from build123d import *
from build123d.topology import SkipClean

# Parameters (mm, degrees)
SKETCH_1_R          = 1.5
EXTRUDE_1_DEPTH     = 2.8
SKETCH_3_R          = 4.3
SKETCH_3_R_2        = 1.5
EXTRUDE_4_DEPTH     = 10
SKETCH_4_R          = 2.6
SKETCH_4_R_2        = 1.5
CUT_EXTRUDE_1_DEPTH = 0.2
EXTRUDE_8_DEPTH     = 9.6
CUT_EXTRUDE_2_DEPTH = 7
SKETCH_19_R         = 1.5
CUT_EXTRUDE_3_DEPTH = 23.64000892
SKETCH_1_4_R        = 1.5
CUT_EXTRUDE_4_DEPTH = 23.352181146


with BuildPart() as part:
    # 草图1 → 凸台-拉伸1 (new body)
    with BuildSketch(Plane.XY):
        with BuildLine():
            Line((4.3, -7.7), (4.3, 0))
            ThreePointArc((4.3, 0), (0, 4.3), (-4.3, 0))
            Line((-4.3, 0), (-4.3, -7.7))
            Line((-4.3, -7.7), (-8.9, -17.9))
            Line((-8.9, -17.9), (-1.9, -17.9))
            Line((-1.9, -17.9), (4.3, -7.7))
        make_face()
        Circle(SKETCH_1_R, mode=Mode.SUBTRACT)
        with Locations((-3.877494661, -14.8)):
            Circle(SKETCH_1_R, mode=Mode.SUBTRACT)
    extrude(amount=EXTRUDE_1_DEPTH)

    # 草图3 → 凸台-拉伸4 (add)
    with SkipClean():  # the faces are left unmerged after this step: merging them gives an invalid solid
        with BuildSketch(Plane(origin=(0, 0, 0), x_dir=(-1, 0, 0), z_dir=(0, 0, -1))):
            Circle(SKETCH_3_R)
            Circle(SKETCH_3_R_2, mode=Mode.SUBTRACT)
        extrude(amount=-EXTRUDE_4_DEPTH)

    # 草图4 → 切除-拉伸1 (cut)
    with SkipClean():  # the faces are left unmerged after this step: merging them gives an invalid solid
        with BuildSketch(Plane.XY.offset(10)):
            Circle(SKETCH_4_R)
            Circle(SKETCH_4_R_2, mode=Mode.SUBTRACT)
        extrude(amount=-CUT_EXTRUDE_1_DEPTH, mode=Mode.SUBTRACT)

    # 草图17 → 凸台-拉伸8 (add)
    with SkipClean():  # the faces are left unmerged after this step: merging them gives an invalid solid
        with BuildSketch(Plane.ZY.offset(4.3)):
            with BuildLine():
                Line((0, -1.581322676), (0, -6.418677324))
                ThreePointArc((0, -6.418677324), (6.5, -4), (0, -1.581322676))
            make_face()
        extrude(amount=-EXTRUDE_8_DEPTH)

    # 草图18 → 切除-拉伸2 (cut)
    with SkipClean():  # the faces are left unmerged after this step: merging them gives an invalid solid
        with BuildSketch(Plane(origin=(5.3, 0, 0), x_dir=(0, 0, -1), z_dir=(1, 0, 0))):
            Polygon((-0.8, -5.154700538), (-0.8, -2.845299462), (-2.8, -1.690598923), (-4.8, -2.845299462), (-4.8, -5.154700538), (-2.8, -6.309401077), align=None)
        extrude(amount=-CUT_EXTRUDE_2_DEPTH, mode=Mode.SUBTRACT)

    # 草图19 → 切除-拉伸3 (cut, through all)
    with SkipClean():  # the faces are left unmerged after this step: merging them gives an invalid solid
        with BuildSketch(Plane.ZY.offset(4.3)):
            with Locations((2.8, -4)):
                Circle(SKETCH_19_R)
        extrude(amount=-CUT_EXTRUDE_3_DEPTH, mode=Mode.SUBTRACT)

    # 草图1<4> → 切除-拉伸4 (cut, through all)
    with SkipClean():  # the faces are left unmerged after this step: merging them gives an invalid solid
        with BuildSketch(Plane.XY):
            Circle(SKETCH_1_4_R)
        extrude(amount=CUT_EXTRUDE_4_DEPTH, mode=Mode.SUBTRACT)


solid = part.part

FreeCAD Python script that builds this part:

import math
import FreeCAD as App
import Part
import Sketcher
from FreeCAD import Vector
Q = App.Units.Quantity

doc = App.newDocument("Part")
params = doc.addObject("Spreadsheet::Sheet", "Params")
for row, (alias, value) in enumerate([
    ("sketch1_diameter", "3 mm"),
    ("sketch1_radius", "4.3 mm"),
    ("sketch1_width", "7 mm"),
    ("sketch1_height", "7.7 mm"),
    ("pad1_length", "2.8 mm"),
    ("sketch2_diameter", "3 mm"),
    ("sketch2_diameter2", "8.6 mm"),
    ("pad2_length", "10 mm"),
    ("sketch3_diameter", "3 mm"),
    ("sketch3_diameter2", "5.2 mm"),
    ("pocket1_length", "0.2 mm"),
    ("sketch4_radius", "3.7 mm"),
    ("pad3_length", "9.6 mm"),
    ("pocket2_length", "7 mm"),
    ("sketch6_diameter", "3 mm"),
    ("sketch7_diameter", "3 mm"),
], start=1):
    params.set(f"A{row}", alias)
    params.set(f"B{row}", "=" + value)
    params.setAlias(f"B{row}", alias)

body = doc.addObject("PartDesign::Body", "Body")

# Sketch on XY plane
sketch1 = body.newObject("Sketcher::SketchObject", "Sketch")
sketch1.AttachmentSupport = (doc.getObject("XY_Plane"), [""])
sketch1.MapMode = "FlatFace"
sketch1.addGeometry([
    Part.LineSegment(Vector(4.3, -7.7, 0), Vector(4.3, 0, 0)),  # 0
    Part.ArcOfCircle(Part.Circle(Vector(0, 0, 0), Vector(0, 0, 1), 4.3), math.radians(0), math.radians(180)),  # 1
    Part.LineSegment(Vector(-4.3, 0, 0), Vector(-4.3, -7.7, 0)),  # 2
    Part.LineSegment(Vector(-4.3, -7.7, 0), Vector(-8.9, -17.9, 0)),  # 3
    Part.LineSegment(Vector(-8.9, -17.9, 0), Vector(-1.9, -17.9, 0)),  # 4
    Part.LineSegment(Vector(-1.9, -17.9, 0), Vector(4.3, -7.7, 0)),  # 5
    Part.Circle(Vector(-3.9, -14.8, 0), Vector(0, 0, 1), 1.5),  # 6
    Part.Circle(Vector(0, 0, 0), Vector(0, 0, 1), 1.5),  # 7
], False)
sketch1.addConstraint([
    Sketcher.Constraint("Tangent", 0, 2, 1, 1),
    Sketcher.Constraint("Tangent", 1, 2, 2, 1),
    Sketcher.Constraint("Coincident", 2, 2, 3, 1),
    Sketcher.Constraint("Coincident", 3, 2, 4, 1),
    Sketcher.Constraint("Coincident", 4, 2, 5, 1),
    Sketcher.Constraint("Coincident", 5, 2, 0, 1),
    Sketcher.Constraint("Vertical", 0),
    Sketcher.Constraint("Vertical", 2),
    Sketcher.Constraint("Horizontal", 4),
    Sketcher.Constraint("Coincident", 1, 3, -1, 1),
    Sketcher.Constraint("Coincident", 7, 3, -1, 1),
    Sketcher.Constraint("Equal", 6, 7),
    Sketcher.Constraint("Horizontal", 2, 2, 5, 2),
    Sketcher.Constraint("Diameter", 6, 3.0),
    Sketcher.Constraint("Radius", 1, 4.3),
    Sketcher.Constraint("DistanceX", 4, 1, 4, 2, 7.0),
    Sketcher.Constraint("DistanceY", 0, 1, 0, 2, 7.7),
    Sketcher.Constraint("DistanceY", 6, 3, -1, 1, 14.8),
    Sketcher.Constraint("DistanceX", 3, 2, -1, 1, 8.9),
    Sketcher.Constraint("DistanceY", 3, 2, -1, 1, 17.9),
    Sketcher.Constraint("DistanceX", 6, 3, -1, 1, 3.877495),
])
sketch1.setExpression("Constraints[13]", "Params.sketch1_diameter")
sketch1.setExpression("Constraints[14]", "Params.sketch1_radius")
sketch1.setExpression("Constraints[15]", "Params.sketch1_width")
sketch1.setExpression("Constraints[16]", "Params.sketch1_height")
pad1 = body.newObject("PartDesign::Pad", "Pad")
pad1.Profile = sketch1
pad1.setExpression("Length", "Params.pad1_length")

# Sketch on XY plane
sketch2 = body.newObject("Sketcher::SketchObject", "Sketch001")
sketch2.AttachmentSupport = (doc.getObject("XY_Plane"), [""])
sketch2.MapMode = "FlatFace"
sketch2.addGeometry([
    Part.Circle(Vector(0, 0, 0), Vector(0, 0, 1), 4.3),
    Part.Circle(Vector(0, 0, 0), Vector(0, 0, 1), 1.5),
], False)
sketch2.addConstraint([
    Sketcher.Constraint("Coincident", 0, 3, -1, 1),
    Sketcher.Constraint("Coincident", 1, 3, -1, 1),
    Sketcher.Constraint("Diameter", 1, 3.0),
    Sketcher.Constraint("Diameter", 0, 8.6),
])
sketch2.setExpression("Constraints[2]", "Params.sketch2_diameter")
sketch2.setExpression("Constraints[3]", "Params.sketch2_diameter2")
pad2 = body.newObject("PartDesign::Pad", "Pad001")
pad2.Profile = sketch2
pad2.setExpression("Length", "Params.pad2_length")

# Sketch on XY plane
sketch3 = body.newObject("Sketcher::SketchObject", "Sketch002")
sketch3.AttachmentSupport = (doc.getObject("XY_Plane"), [""])
sketch3.MapMode = "FlatFace"
sketch3.AttachmentOffset = App.Placement(Vector(0, 0, 10), App.Rotation())
sketch3.addGeometry([
    Part.Circle(Vector(0, 0, 0), Vector(0, 0, 1), 2.6),
    Part.Circle(Vector(0, 0, 0), Vector(0, 0, 1), 1.5),
], False)
sketch3.addConstraint([
    Sketcher.Constraint("Coincident", 0, 3, -1, 1),
    Sketcher.Constraint("Coincident", 1, 3, -1, 1),
    Sketcher.Constraint("Diameter", 1, 3.0),
    Sketcher.Constraint("Diameter", 0, 5.2),
])
sketch3.setExpression("Constraints[2]", "Params.sketch3_diameter")
sketch3.setExpression("Constraints[3]", "Params.sketch3_diameter2")
pocket1 = body.newObject("PartDesign::Pocket", "Pocket")
pocket1.Profile = sketch3
pocket1.setExpression("Length", "Params.pocket1_length")

# Sketch on YZ plane
sketch4 = body.newObject("Sketcher::SketchObject", "Sketch003")
sketch4.AttachmentSupport = (doc.getObject("YZ_Plane"), [""])
sketch4.MapMode = "FlatFace"
sketch4.AttachmentOffset = App.Placement(Vector(0, 0, -4.3), App.Rotation())
sketch4.addGeometry([
    Part.LineSegment(Vector(-1.6, 0, 0), Vector(-6.4, 0, 0)),
    Part.ArcOfCircle(Part.Circle(Vector(-4, 2.8, 0), Vector(0, 0, 1), 3.7), math.radians(-49), math.radians(229)),
], False)
sketch4.addConstraint([
    Sketcher.Constraint("Coincident", 0, 1, 1, 1),
    Sketcher.Constraint("Coincident", 1, 2, 0, 2),
    Sketcher.Constraint("Horizontal", 0),
    Sketcher.Constraint("PointOnObject", 0, 1, -1),
    Sketcher.Constraint("Radius", 1, 3.7),
    Sketcher.Constraint("DistanceX", 1, 3, -1, 1, 4.0),
    Sketcher.Constraint("DistanceY", -1, 1, 1, 3, 2.8),
])
sketch4.setExpression("Constraints[4]", "Params.sketch4_radius")
pad3 = body.newObject("PartDesign::Pad", "Pad002")
pad3.Profile = sketch4
pad3.setExpression("Length", "Params.pad3_length")

# Sketch on YZ plane
sketch5 = body.newObject("Sketcher::SketchObject", "Sketch004")
sketch5.AttachmentSupport = (doc.getObject("YZ_Plane"), [""])
sketch5.MapMode = "FlatFace"
sketch5.AttachmentOffset = App.Placement(Vector(0, 0, 5.3), App.Rotation())
sketch5.addGeometry([
    Part.LineSegment(Vector(-5.2, 0.8, 0), Vector(-2.8, 0.8, 0)),  # 0
    Part.LineSegment(Vector(-2.8, 0.8, 0), Vector(-1.7, 2.8, 0)),  # 1
    Part.LineSegment(Vector(-1.7, 2.8, 0), Vector(-2.8, 4.8, 0)),  # 2
    Part.LineSegment(Vector(-2.8, 4.8, 0), Vector(-5.2, 4.8, 0)),  # 3
    Part.LineSegment(Vector(-5.2, 4.8, 0), Vector(-6.3, 2.8, 0)),  # 4
    Part.LineSegment(Vector(-6.3, 2.8, 0), Vector(-5.2, 0.8, 0)),  # 5
], False)
sketch5.addConstraint([
    Sketcher.Constraint("Coincident", 0, 2, 1, 1),
    Sketcher.Constraint("Coincident", 1, 2, 2, 1),
    Sketcher.Constraint("Coincident", 2, 2, 3, 1),
    Sketcher.Constraint("Coincident", 3, 2, 4, 1),
    Sketcher.Constraint("Coincident", 4, 2, 5, 1),
    Sketcher.Constraint("Coincident", 5, 2, 0, 1),
    Sketcher.Constraint("Horizontal", 0),
    Sketcher.Constraint("Horizontal", 3),
    Sketcher.Constraint("Parallel", 1, 4),
    Sketcher.Constraint("Parallel", 2, 5),
    Sketcher.Constraint("Horizontal", 1, 2, 4, 2),
    Sketcher.Constraint("Vertical", 0, 2, 2, 2),
    Sketcher.Constraint("Vertical", 3, 2, 5, 2),
    Sketcher.Constraint("Angle", 1, Q("60 deg")),
    Sketcher.Constraint("DistanceY", 0, 2, 1, 2, 2.0),
    Sketcher.Constraint("DistanceY", -1, 1, 0, 2, 0.8),
    Sketcher.Constraint("DistanceX", 0, 1, 0, 2, 2.309401),
    Sketcher.Constraint("DistanceX", 0, 2, -1, 1, 2.845299),
])
pocket2 = body.newObject("PartDesign::Pocket", "Pocket001")
pocket2.Profile = sketch5
pocket2.setExpression("Length", "Params.pocket2_length")

# Sketch on YZ plane
sketch6 = body.newObject("Sketcher::SketchObject", "Sketch005")
sketch6.AttachmentSupport = (doc.getObject("YZ_Plane"), [""])
sketch6.MapMode = "FlatFace"
sketch6.AttachmentOffset = App.Placement(Vector(0, 0, -4.3), App.Rotation())
sketch6.addGeometry(Part.Circle(Vector(-4, 2.8, 0), Vector(0, 0, 1), 1.5), False)
sketch6.addConstraint([
    Sketcher.Constraint("Diameter", 0, 3.0),
    Sketcher.Constraint("DistanceX", 0, 3, -1, 1, 4.0),
    Sketcher.Constraint("DistanceY", -1, 1, 0, 3, 2.8),
])
sketch6.setExpression("Constraints[0]", "Params.sketch6_diameter")
pocket3 = body.newObject("PartDesign::Pocket", "Pocket002")
pocket3.Profile = sketch6
pocket3.Type = "ThroughAll"
pocket3.Reversed = True

# Sketch on XY plane
sketch7 = body.newObject("Sketcher::SketchObject", "Sketch006")
sketch7.AttachmentSupport = (doc.getObject("XY_Plane"), [""])
sketch7.MapMode = "FlatFace"
sketch7.addGeometry(Part.Circle(Vector(0, 0, 0), Vector(0, 0, 1), 1.5), False)
sketch7.addConstraint([
    Sketcher.Constraint("Coincident", 0, 3, -1, 1),
    Sketcher.Constraint("Diameter", 0, 3.0),
])
sketch7.setExpression("Constraints[1]", "Params.sketch7_diameter")
pocket4 = body.newObject("PartDesign::Pocket", "Pocket003")
pocket4.Profile = sketch7
pocket4.Type = "ThroughAll"
pocket4.Reversed = True

doc.recompute()
